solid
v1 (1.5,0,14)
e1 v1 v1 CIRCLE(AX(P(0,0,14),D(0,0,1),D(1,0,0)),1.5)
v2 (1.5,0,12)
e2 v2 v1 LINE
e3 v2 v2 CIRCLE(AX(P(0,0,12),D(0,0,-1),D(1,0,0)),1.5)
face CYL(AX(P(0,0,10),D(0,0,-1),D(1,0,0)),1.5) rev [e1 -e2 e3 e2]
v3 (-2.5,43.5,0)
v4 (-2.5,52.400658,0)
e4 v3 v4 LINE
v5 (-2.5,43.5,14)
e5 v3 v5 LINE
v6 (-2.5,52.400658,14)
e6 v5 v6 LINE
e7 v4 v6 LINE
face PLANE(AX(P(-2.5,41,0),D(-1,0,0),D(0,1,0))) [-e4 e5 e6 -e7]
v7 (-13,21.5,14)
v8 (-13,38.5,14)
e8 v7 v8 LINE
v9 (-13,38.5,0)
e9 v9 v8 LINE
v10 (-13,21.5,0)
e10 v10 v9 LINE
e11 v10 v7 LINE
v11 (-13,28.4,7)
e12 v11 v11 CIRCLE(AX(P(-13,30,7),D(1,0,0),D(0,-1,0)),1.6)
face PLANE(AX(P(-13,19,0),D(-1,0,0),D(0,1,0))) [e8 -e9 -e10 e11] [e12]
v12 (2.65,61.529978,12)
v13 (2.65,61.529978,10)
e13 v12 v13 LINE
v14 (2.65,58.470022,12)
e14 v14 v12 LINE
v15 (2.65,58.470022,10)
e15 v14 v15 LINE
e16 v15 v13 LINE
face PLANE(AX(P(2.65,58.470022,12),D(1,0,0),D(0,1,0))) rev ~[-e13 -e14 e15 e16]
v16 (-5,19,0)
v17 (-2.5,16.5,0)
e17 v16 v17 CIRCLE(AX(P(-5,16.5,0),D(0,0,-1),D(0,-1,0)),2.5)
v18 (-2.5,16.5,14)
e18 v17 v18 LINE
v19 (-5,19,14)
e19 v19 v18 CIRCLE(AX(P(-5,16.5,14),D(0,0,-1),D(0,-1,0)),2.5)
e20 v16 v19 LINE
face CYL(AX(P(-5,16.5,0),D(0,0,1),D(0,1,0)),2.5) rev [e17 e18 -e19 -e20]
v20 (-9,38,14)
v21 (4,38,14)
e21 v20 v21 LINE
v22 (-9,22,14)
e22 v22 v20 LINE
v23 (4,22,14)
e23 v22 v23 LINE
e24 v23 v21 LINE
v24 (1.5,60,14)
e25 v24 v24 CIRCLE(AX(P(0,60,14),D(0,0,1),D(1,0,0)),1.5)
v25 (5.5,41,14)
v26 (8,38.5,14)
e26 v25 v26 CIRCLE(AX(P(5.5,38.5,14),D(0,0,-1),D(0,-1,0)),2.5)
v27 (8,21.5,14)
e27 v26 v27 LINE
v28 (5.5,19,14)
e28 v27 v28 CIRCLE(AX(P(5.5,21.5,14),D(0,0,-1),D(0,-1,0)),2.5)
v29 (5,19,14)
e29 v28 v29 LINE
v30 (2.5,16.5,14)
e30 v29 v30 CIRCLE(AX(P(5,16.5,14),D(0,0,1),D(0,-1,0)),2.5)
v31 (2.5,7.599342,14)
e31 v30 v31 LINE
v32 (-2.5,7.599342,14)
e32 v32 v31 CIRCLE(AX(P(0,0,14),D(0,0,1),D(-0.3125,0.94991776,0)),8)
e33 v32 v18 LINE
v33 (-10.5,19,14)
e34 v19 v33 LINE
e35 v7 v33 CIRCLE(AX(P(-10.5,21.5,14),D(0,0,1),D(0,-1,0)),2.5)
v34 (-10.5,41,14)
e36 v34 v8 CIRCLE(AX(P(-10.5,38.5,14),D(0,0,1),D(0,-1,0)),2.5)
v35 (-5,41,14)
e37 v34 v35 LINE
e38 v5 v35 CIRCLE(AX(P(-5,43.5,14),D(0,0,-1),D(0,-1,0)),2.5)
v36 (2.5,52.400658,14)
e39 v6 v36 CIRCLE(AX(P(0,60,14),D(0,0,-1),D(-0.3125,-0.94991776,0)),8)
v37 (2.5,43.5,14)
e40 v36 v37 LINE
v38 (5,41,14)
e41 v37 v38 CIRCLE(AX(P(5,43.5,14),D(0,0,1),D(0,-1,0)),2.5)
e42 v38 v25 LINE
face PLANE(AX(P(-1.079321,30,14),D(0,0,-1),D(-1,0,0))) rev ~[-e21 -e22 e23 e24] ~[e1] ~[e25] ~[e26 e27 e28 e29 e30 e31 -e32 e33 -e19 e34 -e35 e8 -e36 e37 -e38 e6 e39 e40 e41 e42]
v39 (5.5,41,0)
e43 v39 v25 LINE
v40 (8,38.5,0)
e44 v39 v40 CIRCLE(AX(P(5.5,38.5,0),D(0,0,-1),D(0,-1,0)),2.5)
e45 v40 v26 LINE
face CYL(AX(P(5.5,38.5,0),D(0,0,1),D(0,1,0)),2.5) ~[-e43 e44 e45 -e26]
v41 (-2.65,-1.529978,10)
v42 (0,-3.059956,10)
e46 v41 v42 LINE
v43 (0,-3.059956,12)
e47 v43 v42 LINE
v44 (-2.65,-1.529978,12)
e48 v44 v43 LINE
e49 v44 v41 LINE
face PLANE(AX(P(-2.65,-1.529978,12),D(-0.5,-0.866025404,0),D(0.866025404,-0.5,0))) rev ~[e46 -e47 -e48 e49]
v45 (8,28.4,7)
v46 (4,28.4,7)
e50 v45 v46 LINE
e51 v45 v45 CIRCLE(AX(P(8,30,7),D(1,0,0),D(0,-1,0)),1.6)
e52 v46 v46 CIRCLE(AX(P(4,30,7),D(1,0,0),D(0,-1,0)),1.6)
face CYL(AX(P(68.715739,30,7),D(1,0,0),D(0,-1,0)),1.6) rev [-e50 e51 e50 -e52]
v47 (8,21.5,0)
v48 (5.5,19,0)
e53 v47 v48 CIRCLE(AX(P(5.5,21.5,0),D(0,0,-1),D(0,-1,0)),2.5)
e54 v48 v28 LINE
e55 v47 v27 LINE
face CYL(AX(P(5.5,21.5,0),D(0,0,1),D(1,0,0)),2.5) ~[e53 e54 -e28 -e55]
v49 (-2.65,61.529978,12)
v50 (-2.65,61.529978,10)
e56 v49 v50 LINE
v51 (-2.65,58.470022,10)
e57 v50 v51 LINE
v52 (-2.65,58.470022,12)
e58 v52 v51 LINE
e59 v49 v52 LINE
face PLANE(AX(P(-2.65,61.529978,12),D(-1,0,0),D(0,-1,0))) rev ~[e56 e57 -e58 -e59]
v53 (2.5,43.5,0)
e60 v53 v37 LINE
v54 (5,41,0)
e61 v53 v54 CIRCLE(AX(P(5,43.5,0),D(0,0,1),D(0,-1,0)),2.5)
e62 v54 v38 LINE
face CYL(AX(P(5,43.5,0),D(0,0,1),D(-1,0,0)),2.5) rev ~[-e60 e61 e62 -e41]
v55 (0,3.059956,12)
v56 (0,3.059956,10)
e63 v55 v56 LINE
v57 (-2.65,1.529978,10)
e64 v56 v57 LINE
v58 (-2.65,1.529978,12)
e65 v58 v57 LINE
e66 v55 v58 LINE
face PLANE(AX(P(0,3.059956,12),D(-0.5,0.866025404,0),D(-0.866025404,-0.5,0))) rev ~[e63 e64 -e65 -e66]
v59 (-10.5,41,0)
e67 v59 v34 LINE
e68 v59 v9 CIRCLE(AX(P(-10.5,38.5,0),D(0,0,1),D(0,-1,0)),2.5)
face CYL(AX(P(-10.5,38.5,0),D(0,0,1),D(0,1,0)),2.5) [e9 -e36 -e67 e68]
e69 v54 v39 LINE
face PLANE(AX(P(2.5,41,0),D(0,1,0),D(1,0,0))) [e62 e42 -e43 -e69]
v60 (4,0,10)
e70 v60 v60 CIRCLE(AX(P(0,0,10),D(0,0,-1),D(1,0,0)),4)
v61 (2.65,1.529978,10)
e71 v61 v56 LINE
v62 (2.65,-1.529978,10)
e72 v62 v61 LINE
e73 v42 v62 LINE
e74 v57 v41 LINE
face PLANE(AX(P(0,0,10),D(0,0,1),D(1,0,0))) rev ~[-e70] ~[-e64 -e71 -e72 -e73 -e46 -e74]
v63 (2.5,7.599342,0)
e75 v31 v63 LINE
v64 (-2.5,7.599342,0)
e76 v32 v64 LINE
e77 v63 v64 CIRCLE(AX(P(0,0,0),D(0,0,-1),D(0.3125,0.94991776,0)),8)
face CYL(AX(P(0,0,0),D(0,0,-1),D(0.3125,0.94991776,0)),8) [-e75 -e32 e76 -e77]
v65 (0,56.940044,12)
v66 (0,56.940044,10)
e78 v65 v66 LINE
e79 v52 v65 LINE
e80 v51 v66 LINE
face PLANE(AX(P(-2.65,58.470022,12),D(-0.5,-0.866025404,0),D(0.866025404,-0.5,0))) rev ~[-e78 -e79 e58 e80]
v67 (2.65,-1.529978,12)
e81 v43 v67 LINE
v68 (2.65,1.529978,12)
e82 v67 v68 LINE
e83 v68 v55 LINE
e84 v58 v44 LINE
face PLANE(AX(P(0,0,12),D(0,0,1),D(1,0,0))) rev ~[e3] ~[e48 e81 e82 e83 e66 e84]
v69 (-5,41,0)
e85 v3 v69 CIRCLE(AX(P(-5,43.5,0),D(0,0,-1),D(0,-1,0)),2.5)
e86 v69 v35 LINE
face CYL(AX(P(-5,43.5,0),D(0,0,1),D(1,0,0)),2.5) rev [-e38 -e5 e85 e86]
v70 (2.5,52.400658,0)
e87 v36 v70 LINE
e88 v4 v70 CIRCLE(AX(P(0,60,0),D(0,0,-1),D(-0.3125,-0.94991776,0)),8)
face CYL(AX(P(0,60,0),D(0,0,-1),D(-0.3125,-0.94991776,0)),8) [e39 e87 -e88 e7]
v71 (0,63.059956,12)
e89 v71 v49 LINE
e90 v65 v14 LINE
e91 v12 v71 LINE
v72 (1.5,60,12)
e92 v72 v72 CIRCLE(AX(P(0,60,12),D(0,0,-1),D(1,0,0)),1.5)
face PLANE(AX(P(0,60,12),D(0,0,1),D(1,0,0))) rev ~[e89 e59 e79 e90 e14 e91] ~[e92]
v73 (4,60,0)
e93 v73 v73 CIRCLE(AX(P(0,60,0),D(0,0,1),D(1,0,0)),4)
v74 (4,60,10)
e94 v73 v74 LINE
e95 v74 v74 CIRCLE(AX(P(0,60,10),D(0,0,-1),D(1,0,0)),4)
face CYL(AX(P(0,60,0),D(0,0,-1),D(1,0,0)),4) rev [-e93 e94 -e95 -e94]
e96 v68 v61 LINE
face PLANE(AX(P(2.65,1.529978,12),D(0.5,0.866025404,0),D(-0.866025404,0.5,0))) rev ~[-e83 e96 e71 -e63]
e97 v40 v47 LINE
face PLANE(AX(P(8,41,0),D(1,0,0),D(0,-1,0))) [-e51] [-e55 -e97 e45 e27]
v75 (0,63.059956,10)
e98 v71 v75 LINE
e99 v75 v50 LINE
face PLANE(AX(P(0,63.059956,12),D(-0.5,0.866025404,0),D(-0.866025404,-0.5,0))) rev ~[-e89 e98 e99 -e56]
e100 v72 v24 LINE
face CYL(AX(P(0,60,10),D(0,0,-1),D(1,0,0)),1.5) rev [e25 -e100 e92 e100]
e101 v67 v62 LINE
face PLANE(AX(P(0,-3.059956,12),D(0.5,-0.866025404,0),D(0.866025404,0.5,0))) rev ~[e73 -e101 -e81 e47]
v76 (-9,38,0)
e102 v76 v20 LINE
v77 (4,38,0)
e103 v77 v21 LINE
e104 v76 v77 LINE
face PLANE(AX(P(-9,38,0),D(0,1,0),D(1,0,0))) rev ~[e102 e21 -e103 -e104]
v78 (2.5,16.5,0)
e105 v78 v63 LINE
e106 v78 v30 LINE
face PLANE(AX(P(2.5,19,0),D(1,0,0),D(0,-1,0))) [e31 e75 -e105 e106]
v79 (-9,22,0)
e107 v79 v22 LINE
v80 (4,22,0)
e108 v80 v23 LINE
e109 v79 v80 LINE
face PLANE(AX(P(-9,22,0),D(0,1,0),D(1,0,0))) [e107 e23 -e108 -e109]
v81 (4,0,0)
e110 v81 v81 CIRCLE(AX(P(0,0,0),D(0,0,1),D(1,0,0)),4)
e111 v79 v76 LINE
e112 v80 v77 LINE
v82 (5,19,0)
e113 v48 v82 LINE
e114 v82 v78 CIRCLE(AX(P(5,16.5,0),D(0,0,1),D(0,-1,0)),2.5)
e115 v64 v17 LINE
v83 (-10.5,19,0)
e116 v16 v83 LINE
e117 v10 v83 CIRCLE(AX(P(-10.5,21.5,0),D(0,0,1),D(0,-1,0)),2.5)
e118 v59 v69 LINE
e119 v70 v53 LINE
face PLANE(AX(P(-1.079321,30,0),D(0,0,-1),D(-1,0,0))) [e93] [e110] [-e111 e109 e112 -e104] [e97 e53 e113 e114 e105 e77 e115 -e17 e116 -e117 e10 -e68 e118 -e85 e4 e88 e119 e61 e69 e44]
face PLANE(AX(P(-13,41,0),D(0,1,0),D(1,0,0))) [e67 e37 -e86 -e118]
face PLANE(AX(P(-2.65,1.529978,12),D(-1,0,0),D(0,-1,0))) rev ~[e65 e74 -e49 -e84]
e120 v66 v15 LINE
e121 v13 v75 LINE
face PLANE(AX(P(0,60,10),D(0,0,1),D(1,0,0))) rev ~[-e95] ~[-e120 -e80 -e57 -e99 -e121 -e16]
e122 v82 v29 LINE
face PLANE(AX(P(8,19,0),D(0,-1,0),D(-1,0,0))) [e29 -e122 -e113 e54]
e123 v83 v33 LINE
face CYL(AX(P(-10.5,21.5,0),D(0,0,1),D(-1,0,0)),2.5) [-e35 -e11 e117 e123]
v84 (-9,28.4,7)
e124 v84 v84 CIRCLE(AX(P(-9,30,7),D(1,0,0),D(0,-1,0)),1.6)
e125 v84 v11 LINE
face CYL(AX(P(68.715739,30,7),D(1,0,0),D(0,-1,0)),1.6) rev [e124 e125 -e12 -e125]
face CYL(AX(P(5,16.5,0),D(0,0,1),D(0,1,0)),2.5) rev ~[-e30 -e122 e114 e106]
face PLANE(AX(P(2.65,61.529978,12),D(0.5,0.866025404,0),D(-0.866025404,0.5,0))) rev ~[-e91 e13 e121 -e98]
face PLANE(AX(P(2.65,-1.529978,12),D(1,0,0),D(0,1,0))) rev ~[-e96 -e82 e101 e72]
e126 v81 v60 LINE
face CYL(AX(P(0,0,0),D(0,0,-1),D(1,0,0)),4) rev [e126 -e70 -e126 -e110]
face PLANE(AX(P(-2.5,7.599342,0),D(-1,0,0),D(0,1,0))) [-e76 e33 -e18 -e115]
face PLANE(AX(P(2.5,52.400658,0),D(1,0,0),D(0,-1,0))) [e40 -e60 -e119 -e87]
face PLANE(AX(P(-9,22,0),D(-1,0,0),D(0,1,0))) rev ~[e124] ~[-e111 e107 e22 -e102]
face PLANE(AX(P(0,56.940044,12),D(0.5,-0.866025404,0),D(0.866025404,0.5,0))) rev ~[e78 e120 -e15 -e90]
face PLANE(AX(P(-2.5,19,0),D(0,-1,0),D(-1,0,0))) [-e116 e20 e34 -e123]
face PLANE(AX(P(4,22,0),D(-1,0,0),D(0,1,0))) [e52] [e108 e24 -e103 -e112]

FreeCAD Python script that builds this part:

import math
import FreeCAD as App
import Part
import Sketcher
Q = App.Units.Quantity


def edges_at(feature, points):
    """Names of the edges that pass closest to the given points."""
    edges = feature.Shape.Edges
    near = lambda p: min(range(len(edges)), key=lambda i: edges[i].distToShape(Part.Vertex(*p))[0])
    return sorted({f"Edge{near(p) + 1}" for p in points})

doc = App.newDocument("Part")
body = doc.addObject("PartDesign::Body", "Body")

# Sketch on XY plane
sketch1 = body.newObject("Sketcher::SketchObject", "Sketch")
sketch1.AttachmentSupport = (doc.getObject("XY_Plane"), [""])
sketch1.MapMode = "FlatFace"
sketch1.addGeometry([
    Part.LineSegment(App.Vector(2.5, 41, 0), App.Vector(2.5, 52.4, 0)),  # 0
    Part.ArcOfCircle(Part.Circle(App.Vector(0, 60, 0), App.Vector(0, 0, 1), 8), math.radians(-72), math.radians(252)),  # 1
    Part.LineSegment(App.Vector(-2.5, 52.4, 0), App.Vector(-2.5, 41, 0)),  # 2
    Part.LineSegment(App.Vector(-2.5, 41, 0), App.Vector(-13, 41, 0)),  # 3
    Part.LineSegment(App.Vector(-13, 41, 0), App.Vector(-13, 19, 0)),  # 4
    Part.LineSegment(App.Vector(-13, 19, 0), App.Vector(-2.5, 19, 0)),  # 5
    Part.LineSegment(App.Vector(-2.5, 19, 0), App.Vector(-2.5, 7.6, 0)),  # 6
    Part.ArcOfCircle(Part.Circle(App.Vector(0, 0, 0), App.Vector(0, 0, 1), 8), math.radians(108), math.radians(432)),  # 7
    Part.LineSegment(App.Vector(2.5, 7.6, 0), App.Vector(2.5, 19, 0)),  # 8
    Part.LineSegment(App.Vector(2.5, 19, 0), App.Vector(8, 19, 0)),  # 9
    Part.LineSegment(App.Vector(8, 19, 0), App.Vector(8, 41, 0)),  # 10
    Part.LineSegment(App.Vector(8, 41, 0), App.Vector(2.5, 41, 0)),  # 11
    Part.Circle(App.Vector(0, 0, 0), App.Vector(0, 0, 1), 4),  # 12
    Part.Circle(App.Vector(0, 60, 0), App.Vector(0, 0, 1), 4),  # 13
    Part.LineSegment(App.Vector(-9, 22, 0), App.Vector(-9, 38, 0)),  # 14
    Part.LineSegment(App.Vector(-9, 38, 0), App.Vector(4, 38, 0)),  # 15
    Part.LineSegment(App.Vector(4, 38, 0), App.Vector(4, 22, 0)),  # 16
    Part.LineSegment(App.Vector(4, 22, 0), App.Vector(-9, 22, 0)),  # 17
], False)
sketch1.addConstraint([
    Sketcher.Constraint("Coincident", 0, 2, 1, 1),
    Sketcher.Constraint("Coincident", 1, 2, 2, 1),
    Sketcher.Constraint("Coincident", 2, 2, 3, 1),
    Sketcher.Constraint("Coincident", 3, 2, 4, 1),
    Sketcher.Constraint("Coincident", 4, 2, 5, 1),
    Sketcher.Constraint("Coincident", 5, 2, 6, 1),
    Sketcher.Constraint("Coincident", 6, 2, 7, 1),
    Sketcher.Constraint("Coincident", 7, 2, 8, 1),
    Sketcher.Constraint("Coincident", 8, 2, 9, 1),
    Sketcher.Constraint("Coincident", 9, 2, 10, 1),
    Sketcher.Constraint("Coincident", 10, 2, 11, 1),
    Sketcher.Constraint("Coincident", 11, 2, 0, 1),
    Sketcher.Constraint("Coincident", 14, 2, 15, 1),
    Sketcher.Constraint("Coincident", 15, 2, 16, 1),
    Sketcher.Constraint("Coincident", 16, 2, 17, 1),
    Sketcher.Constraint("Coincident", 17, 2, 14, 1),
    Sketcher.Constraint("Vertical", 0),
    Sketcher.Constraint("Vertical", 2),
    Sketcher.Constraint("Horizontal", 3),
    Sketcher.Constraint("Vertical", 4),
    Sketcher.Constraint("Horizontal", 5),
    Sketcher.Constraint("Vertical", 6),
    Sketcher.Constraint("Vertical", 8),
    Sketcher.Constraint("Horizontal", 9),
    Sketcher.Constraint("Vertical", 10),
    Sketcher.Constraint("Horizontal", 11),
    Sketcher.Constraint("Vertical", 14),
    Sketcher.Constraint("Horizontal", 15),
    Sketcher.Constraint("Vertical", 16),
    Sketcher.Constraint("Horizontal", 17),
    Sketcher.Constraint("Coincident", 7, 3, -1, 1),
    Sketcher.Constraint("Coincident", 12, 3, -1, 1),
    Sketcher.Constraint("Coincident", 13, 3, 1, 3),
    Sketcher.Constraint("Equal", 1, 7),
    Sketcher.Constraint("Equal", 12, 13),
    Sketcher.Constraint("Symmetric", 0, 2, 1, 2, -2),
    Sketcher.Constraint("Symmetric", 5, 2, 8, 2, -2),
    Sketcher.Constraint("Horizontal", 3, 2, 10, 2),
    Sketcher.Constraint("Vertical", 2, 2, 5, 2),
    Sketcher.Constraint("Equal", 2, 6),
    Sketcher.Constraint("Diameter", 12, 8.0),
    Sketcher.Constraint("Radius", 1, 8.0),
    Sketcher.Constraint("DistanceX", 15, 1, 15, 2, 13.0),
    Sketcher.Constraint("DistanceY", 4, 2, 4, 1, 22.0),
    Sketcher.Constraint("DistanceY", 14, 1, 14, 2, 16.0),
    Sketcher.Constraint("DistanceX", 3, 2, 3, 1, 10.5),
    Sketcher.Constraint("DistanceX", 9, 1, 9, 2, 5.5),
    Sketcher.Constraint("DistanceY", -1, 1, 1, 3, 60.0),
    Sketcher.Constraint("DistanceX", 3, 2, -1, 1, 13.0),
    Sketcher.Constraint("DistanceX", 14, 2, -1, 1, 9.0),
    Sketcher.Constraint("DistanceY", -1, 1, 14, 2, 38.0),
])
pad1 = body.newObject("PartDesign::Pad", "Pad")
pad1.Profile = sketch1
pad1.Length = 14

# Sketch on XY plane
sketch2 = body.newObject("Sketcher::SketchObject", "Sketch001")
sketch2.AttachmentSupport = (doc.getObject("XY_Plane"), [""])
sketch2.MapMode = "FlatFace"
sketch2.AttachmentOffset = App.Placement(App.Vector(0, 0, 10), App.Rotation())
sketch2.addGeometry([
    Part.Circle(App.Vector(0, 60, 0), App.Vector(0, 0, 1), 8),
    Part.Circle(App.Vector(0, 60, 0), App.Vector(0, 0, 1), 1.5),
    Part.Circle(App.Vector(0, 0, 0), App.Vector(0, 0, 1), 8),
    Part.Circle(App.Vector(0, 0, 0), App.Vector(0, 0, 1), 1.5),
], False)
sketch2.addConstraint([
    Sketcher.Constraint("Coincident", 2, 3, -1, 1),
    Sketcher.Constraint("Coincident", 3, 3, -1, 1),
    Sketcher.Constraint("Coincident", 1, 3, 0, 3),
    Sketcher.Constraint("Equal", 0, 2),
    Sketcher.Constraint("Equal", 1, 3),
    Sketcher.Constraint("PointOnObject", 0, 3, -2),
    Sketcher.Constraint("Diameter", 0, 16.0),
    Sketcher.Constraint("Diameter", 1, 3.0),
    Sketcher.Constraint("DistanceY", -1, 1, 0, 3, 60.0),
])
pad2 = body.newObject("PartDesign::Pad", "Pad001")
pad2.Profile = sketch2
pad2.Length = 4

# Sketch on YZ plane
sketch3 = body.newObject("Sketcher::SketchObject", "Sketch002")
sketch3.AttachmentSupport = (doc.getObject("YZ_Plane"), [""])
sketch3.MapMode = "FlatFace"
sketch3.AttachmentOffset = App.Placement(App.Vector(0, 0, -2.5), App.Rotation())
sketch3.addGeometry(Part.Circle(App.Vector(30, 7, 0), App.Vector(0, 0, 1), 1.6), False)
sketch3.addConstraint([
    Sketcher.Constraint("Diameter", 0, 3.2),
    Sketcher.Constraint("DistanceX", -1, 1, 0, 3, 30.0),
    Sketcher.Constraint("DistanceY", -1, 1, 0, 3, 7.0),
])
pocket1 = body.newObject("PartDesign::Pocket", "Pocket")
pocket1.Profile = sketch3
pocket1.Type = "ThroughAll"
pocket1.Midplane = True

# Sketch on XY plane
sketch4 = body.newObject("Sketcher::SketchObject", "Sketch003")
sketch4.AttachmentSupport = (doc.getObject("XY_Plane"), [""])
sketch4.MapMode = "FlatFace"
sketch4.AttachmentOffset = App.Placement(App.Vector(0, 0, 12), App.Rotation())
sketch4.addGeometry([
    Part.LineSegment(App.Vector(0, 56.9, 0), App.Vector(2.6, 58.5, 0)),  # 0
    Part.LineSegment(App.Vector(2.6, 58.5, 0), App.Vector(2.6, 61.5, 0)),  # 1
    Part.LineSegment(App.Vector(2.6, 61.5, 0), App.Vector(0, 63.1, 0)),  # 2
    Part.LineSegment(App.Vector(0, 63.1, 0), App.Vector(-2.6, 61.5, 0)),  # 3
    Part.LineSegment(App.Vector(-2.6, 61.5, 0), App.Vector(-2.6, 58.5, 0)),  # 4
    Part.LineSegment(App.Vector(-2.6, 58.5, 0), App.Vector(0, 56.9, 0)),  # 5
    Part.LineSegment(App.Vector(0, -3.1, 0), App.Vector(2.6, -1.5, 0)),  # 6
    Part.LineSegment(App.Vector(2.6, -1.5, 0), App.Vector(2.6, 1.5, 0)),  # 7
    Part.LineSegment(App.Vector(2.6, 1.5, 0), App.Vector(0, 3.1, 0)),  # 8
    Part.LineSegment(App.Vector(0, 3.1, 0), App.Vector(-2.6, 1.5, 0)),  # 9
    Part.LineSegment(App.Vector(-2.6, 1.5, 0), App.Vector(-2.6, -1.5, 0)),  # 10
    Part.LineSegment(App.Vector(-2.6, -1.5, 0), App.Vector(0, -3.1, 0)),  # 11
], False)
sketch4.addConstraint([
    Sketcher.Constraint("Coincident", 0, 2, 1, 1),
    Sketcher.Constraint("Coincident", 1, 2, 2, 1),
    Sketcher.Constraint("Coincident", 2, 2, 3, 1),
    Sketcher.Constraint("Coincident", 3, 2, 4, 1),
    Sketcher.Constraint("Coincident", 4, 2, 5, 1),
    Sketcher.Constraint("Coincident", 5, 2, 0, 1),
    Sketcher.Constraint("Coincident", 6, 2, 7, 1),
    Sketcher.Constraint("Coincident", 7, 2, 8, 1),
    Sketcher.Constraint("Coincident", 8, 2, 9, 1),
    Sketcher.Constraint("Coincident", 9, 2, 10, 1),
    Sketcher.Constraint("Coincident", 10, 2, 11, 1),
    Sketcher.Constraint("Coincident", 11, 2, 6, 1),
    Sketcher.Constraint("Vertical", 1),
    Sketcher.Constraint("Vertical", 4),
    Sketcher.Constraint("Vertical", 7),
    Sketcher.Constraint("Vertical", 10),
    Sketcher.Constraint("Symmetric", 6, 2, 9, 2, -1, 1),
    Sketcher.Constraint("Symmetric", 8, 2, 11, 2, -1, 1),
    Sketcher.Constraint("Symmetric", 1, 2, 3, 2, -2),
    Sketcher.Constraint("PointOnObject", 2, 2, -2),
    Sketcher.Constraint("PointOnObject", 5, 2, -2),
    Sketcher.Constraint("PointOnObject", 8, 2, -2),
    Sketcher.Constraint("Parallel", 0, 3),
    Sketcher.Constraint("Parallel", 2, 5),
    Sketcher.Constraint("Parallel", 3, 6),
    Sketcher.Constraint("Parallel", 5, 8),
    Sketcher.Constraint("Parallel", 8, 11),
    Sketcher.Constraint("Vertical", 1, 2, 6, 2),
    Sketcher.Constraint("Equal", 4, 7),
    Sketcher.Constraint("Angle", 0, Q("30 deg")),
    Sketcher.Constraint("DistanceY", 6, 2, 0, 2, 60.0),
    Sketcher.Constraint("DistanceX", 3, 2, 1, 2, 5.3),
    Sketcher.Constraint("DistanceY", 1, 1, 1, 2, 3.059956),
])
pocket2 = body.newObject("PartDesign::Pocket", "Pocket001")
pocket2.Profile = sketch4
pocket2.Length = 2
doc.recompute()

fillet = body.newObject("PartDesign::Fillet", "Fillet")
fillet.Base = (pocket2, edges_at(pocket2, [
    (-2.5, 19, 7),
    (-13, 19, 7),
    (-13, 41, 7),
    (-2.5, 41, 7),
    (2.5, 41, 7),
    (8, 41, 7),
    (8, 19, 7),
    (2.5, 19, 7),
]))
fillet.Radius = 2.5

doc.recompute()
